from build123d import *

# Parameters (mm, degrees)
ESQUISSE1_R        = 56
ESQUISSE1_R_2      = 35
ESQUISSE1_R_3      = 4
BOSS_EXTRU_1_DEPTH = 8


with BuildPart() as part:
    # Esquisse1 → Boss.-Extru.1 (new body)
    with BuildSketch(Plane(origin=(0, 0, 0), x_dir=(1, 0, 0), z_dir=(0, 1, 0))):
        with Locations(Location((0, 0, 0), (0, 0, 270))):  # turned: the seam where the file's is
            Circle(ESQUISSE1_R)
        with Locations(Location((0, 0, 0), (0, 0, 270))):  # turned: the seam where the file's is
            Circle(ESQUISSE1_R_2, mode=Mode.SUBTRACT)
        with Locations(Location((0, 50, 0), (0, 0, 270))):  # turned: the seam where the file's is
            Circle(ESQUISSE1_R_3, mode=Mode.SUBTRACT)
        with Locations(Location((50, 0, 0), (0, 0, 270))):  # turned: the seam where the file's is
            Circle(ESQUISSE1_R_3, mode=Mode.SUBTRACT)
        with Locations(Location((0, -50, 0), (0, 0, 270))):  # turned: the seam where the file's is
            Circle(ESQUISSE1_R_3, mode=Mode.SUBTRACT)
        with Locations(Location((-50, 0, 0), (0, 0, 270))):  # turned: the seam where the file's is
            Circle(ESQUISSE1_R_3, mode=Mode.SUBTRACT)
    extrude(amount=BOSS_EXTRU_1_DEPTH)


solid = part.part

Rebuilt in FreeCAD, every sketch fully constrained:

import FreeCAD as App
import Part
import Sketcher
from FreeCAD import Vector
Q = App.Units.Quantity

doc = App.newDocument("Part")
body = doc.addObject("PartDesign::Body", "Body")

sketch1 = doc.addObject("Sketcher::SketchObject", "Sketch")
body.addObject(sketch1)
sketch1.AttachmentSupport = (doc.XZ_Plane, [""])
sketch1.MapMode = "FlatFace"
sketch1.addGeometry([
    Part.Circle(Vector(0, 0, 0), Vector(0, 0, 1), 56),
    Part.Circle(Vector(0, -50, 0), Vector(0, 0, 1), 4),
    Part.Circle(Vector(-50, 0, 0), Vector(0, 0, 1), 4),
    Part.Circle(Vector(50, 0, 0), Vector(0, 0, 1), 4),
    Part.Circle(Vector(0, 0, 0), Vector(0, 0, 1), 35),
    Part.Circle(Vector(0, 50, 0), Vector(0, 0, 1), 4),
], False)
sketch1.addConstraint([
    Sketcher.Constraint("Coincident", 0, 3, -1, 1),
    Sketcher.Constraint("Coincident", 4, 3, -1, 1),
    Sketcher.Constraint("Equal", 1, 2),
    Sketcher.Constraint("Equal", 2, 3),
    Sketcher.Constraint("Equal", 3, 5),
    Sketcher.Constraint("Symmetric", 2, 3, 3, 3, -1, 1),
    Sketcher.Constraint("Symmetric", 1, 3, 5, 3, -1, 1),
    Sketcher.Constraint("PointOnObject", 1, 3, -2),
    Sketcher.Constraint("PointOnObject", 2, 3, -1),
    Sketcher.Constraint("Diameter", 0, Q("112 mm")),
    Sketcher.Constraint("Diameter", 1, Q("8 mm")),
    Sketcher.Constraint("Diameter", 4, Q("70 mm")),
    Sketcher.Constraint("DistanceY", 1, 3, -1, 1, Q("50 mm")),
    Sketcher.Constraint("DistanceX", 2, 3, -1, 1, Q("50 mm")),
])
pad1 = doc.addObject("PartDesign::Pad", "Pad")
body.addObject(pad1)
pad1.Profile = sketch1
pad1.Length = 8
pad1.Reversed = True

doc.recompute()
